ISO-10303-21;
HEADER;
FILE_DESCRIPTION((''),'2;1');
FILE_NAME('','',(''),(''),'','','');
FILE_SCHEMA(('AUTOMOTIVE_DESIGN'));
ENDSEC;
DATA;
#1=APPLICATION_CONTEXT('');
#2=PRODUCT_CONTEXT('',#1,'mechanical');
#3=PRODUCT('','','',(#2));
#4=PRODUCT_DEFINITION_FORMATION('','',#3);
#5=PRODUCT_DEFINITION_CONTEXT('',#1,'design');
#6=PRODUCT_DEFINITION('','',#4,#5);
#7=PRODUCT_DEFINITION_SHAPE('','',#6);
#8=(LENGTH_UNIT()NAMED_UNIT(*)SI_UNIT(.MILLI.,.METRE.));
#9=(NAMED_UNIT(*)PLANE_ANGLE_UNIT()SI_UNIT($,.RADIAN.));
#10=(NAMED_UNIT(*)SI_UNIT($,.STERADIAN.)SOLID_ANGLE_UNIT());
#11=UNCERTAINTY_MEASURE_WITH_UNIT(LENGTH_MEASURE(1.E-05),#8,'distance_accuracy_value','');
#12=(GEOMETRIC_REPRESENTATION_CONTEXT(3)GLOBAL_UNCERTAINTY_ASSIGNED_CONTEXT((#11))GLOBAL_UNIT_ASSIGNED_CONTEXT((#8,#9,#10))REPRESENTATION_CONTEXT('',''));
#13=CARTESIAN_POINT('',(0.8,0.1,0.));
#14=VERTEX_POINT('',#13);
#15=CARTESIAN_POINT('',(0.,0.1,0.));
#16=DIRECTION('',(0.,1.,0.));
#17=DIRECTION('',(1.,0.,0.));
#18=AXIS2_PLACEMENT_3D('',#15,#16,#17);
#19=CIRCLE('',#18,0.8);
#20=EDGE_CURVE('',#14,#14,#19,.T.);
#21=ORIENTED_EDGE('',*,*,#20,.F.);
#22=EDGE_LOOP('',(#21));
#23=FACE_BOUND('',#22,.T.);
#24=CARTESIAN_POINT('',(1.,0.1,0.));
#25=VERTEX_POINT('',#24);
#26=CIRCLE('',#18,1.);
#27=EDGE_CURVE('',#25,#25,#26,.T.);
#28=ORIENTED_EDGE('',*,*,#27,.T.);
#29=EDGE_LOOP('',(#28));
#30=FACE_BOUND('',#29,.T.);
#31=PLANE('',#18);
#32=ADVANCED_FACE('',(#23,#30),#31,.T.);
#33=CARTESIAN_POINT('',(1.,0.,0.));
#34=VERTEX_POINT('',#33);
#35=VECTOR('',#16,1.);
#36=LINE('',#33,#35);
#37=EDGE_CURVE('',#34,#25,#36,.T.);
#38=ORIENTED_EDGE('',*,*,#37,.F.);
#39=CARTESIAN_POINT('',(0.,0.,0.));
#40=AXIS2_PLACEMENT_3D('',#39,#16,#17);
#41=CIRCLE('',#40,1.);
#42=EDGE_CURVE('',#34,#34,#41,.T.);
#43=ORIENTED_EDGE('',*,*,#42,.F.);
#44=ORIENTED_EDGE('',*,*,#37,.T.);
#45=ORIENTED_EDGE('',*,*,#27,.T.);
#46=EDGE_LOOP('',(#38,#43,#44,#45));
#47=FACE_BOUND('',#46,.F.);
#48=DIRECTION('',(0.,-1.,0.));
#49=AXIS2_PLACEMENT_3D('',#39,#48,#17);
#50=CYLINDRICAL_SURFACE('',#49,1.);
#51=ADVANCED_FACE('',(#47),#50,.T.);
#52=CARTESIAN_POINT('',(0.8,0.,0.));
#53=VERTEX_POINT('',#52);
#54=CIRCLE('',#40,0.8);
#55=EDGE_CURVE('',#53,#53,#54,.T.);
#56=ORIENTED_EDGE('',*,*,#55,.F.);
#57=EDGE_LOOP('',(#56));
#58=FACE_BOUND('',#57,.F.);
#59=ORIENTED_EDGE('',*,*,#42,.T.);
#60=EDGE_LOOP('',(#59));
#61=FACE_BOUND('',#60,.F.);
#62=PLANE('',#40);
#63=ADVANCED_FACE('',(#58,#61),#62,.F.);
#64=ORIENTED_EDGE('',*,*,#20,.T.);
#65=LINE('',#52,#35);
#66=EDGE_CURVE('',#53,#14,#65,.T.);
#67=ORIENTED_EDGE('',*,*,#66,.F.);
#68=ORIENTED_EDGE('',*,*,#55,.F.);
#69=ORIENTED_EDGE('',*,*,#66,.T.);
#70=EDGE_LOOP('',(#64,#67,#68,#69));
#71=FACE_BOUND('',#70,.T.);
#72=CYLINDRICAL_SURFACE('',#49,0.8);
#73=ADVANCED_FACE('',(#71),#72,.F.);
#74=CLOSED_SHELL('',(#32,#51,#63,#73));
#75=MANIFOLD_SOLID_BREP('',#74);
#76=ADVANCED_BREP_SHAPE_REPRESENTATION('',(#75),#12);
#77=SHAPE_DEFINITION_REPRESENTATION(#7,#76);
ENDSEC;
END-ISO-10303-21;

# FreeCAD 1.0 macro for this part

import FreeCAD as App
import Part
import Sketcher
Q = App.Units.Quantity

doc = App.newDocument("Part")
body = doc.addObject("PartDesign::Body", "Body")

# Sketch on XZ plane
sketch1 = doc.addObject("Sketcher::SketchObject", "Sketch")
body.addObject(sketch1)
sketch1.AttachmentSupport = (doc.XZ_Plane, [""])
sketch1.MapMode = "FlatFace"
sketch1.addGeometry([
    Part.Circle(App.Vector(0, 0, 0), App.Vector(0, 0, 1), 1),
    Part.Circle(App.Vector(0, 0, 0), App.Vector(0, 0, 1), 0.8),
], False)
sketch1.addConstraint([
    Sketcher.Constraint("Coincident", 0, 3, -1, 1),
    Sketcher.Constraint("Coincident", 1, 3, -1, 1),
    Sketcher.Constraint("Diameter", 0, Q("2 mm")),
    Sketcher.Constraint("Diameter", 1, Q("1.6 mm")),
])
pad1 = doc.addObject("PartDesign::Pad", "Pad")
body.addObject(pad1)
pad1.Profile = sketch1
pad1.Length = 0.1
pad1.Reversed = True

doc.recompute()
